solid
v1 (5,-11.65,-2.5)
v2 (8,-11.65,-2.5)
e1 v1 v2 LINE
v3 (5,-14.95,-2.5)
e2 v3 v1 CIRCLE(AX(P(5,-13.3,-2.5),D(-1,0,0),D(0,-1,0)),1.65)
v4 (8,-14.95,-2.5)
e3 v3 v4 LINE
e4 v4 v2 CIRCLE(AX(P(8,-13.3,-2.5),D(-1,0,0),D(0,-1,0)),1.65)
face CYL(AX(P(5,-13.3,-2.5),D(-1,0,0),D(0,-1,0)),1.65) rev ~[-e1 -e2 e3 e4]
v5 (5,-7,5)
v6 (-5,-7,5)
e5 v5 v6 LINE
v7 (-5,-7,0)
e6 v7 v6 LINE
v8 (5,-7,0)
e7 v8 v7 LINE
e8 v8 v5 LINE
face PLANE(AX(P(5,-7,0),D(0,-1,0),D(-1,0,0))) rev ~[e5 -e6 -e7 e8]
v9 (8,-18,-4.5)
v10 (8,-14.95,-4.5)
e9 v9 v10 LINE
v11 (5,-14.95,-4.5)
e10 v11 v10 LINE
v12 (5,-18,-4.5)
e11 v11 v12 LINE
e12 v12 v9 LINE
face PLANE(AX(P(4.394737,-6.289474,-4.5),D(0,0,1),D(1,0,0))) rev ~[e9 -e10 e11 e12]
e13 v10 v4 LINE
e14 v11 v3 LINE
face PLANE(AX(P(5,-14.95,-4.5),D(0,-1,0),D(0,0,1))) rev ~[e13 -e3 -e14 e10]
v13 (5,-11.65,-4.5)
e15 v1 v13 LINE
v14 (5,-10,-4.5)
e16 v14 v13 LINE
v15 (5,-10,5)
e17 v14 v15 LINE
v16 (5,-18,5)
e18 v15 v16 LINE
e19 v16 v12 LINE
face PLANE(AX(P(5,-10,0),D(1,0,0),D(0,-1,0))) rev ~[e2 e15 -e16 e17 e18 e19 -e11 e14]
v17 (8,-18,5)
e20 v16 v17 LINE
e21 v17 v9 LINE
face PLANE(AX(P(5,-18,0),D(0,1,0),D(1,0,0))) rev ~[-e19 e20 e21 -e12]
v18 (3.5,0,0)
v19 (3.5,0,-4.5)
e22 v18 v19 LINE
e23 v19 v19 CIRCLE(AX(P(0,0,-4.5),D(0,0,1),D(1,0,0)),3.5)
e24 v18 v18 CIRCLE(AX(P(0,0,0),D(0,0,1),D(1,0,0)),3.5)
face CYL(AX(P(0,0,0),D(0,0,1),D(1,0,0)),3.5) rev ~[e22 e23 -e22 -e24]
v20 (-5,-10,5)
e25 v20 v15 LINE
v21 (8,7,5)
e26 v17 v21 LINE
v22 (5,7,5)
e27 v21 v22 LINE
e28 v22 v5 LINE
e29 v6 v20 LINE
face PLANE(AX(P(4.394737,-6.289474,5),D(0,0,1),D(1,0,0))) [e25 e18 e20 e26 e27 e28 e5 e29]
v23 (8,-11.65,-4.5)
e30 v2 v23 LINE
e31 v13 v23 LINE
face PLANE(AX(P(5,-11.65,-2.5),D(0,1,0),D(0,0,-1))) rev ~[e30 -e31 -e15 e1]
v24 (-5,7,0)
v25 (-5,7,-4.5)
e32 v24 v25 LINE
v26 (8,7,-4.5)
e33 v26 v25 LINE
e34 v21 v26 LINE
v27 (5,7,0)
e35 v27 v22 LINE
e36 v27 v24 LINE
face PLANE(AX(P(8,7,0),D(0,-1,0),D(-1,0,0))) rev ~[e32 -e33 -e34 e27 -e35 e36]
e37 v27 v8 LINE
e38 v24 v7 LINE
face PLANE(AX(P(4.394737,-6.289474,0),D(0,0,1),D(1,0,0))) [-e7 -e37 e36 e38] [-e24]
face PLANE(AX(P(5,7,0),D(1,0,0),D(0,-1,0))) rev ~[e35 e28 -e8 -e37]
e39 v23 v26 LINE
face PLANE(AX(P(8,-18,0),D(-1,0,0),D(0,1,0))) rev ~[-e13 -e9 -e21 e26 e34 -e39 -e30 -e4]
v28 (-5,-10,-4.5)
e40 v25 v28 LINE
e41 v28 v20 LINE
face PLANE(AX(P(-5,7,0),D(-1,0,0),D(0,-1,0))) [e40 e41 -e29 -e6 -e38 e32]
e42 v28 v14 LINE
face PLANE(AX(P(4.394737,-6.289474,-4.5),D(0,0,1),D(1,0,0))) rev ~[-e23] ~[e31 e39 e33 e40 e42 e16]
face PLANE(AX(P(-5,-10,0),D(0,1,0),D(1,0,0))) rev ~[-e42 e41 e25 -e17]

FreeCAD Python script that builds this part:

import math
import FreeCAD as App
import Part
import Sketcher
Q = App.Units.Quantity


def add_polygon(sketch, points):
    """Adds a closed chain of lines whose ends are joined by coincident constraints."""
    first, n = sketch.GeometryCount, len(points)
    for a, b in zip(points, points[1:] + points[:1]):
        sketch.addGeometry(Part.LineSegment(App.Vector(*a, 0), App.Vector(*b, 0)), False)
    for i in range(n):
        sketch.addConstraint(Sketcher.Constraint("Coincident", first + i, 2, first + (i + 1) % n, 1))

doc = App.newDocument("Part")
body = doc.addObject("PartDesign::Body", "Body")

# Sketch on XY plane
sketch1 = body.newObject("Sketcher::SketchObject", "Sketch")
sketch1.AttachmentSupport = (doc.getObject("XY_Plane"), [""])
sketch1.MapMode = "FlatFace"
add_polygon(sketch1, [(8, 7), (-5, 7), (-5, -10), (5, -10), (5, -18), (8, -18)])  # lines 0-5
sketch1.addGeometry(Part.Circle(App.Vector(0, 0, 0), App.Vector(0, 0, 1), 3.5), False)  # 6
sketch1.addConstraint([
    Sketcher.Constraint("Horizontal", 0),
    Sketcher.Constraint("Vertical", 1),
    Sketcher.Constraint("Horizontal", 2),
    Sketcher.Constraint("Vertical", 3),
    Sketcher.Constraint("Horizontal", 4),
    Sketcher.Constraint("Vertical", 5),
    Sketcher.Constraint("Coincident", 6, 3, -1, 1),
    Sketcher.Constraint("Diameter", 6, Q("7 mm")),
    Sketcher.Constraint("DistanceX", 0, 2, 0, 1, Q("13 mm")),
    Sketcher.Constraint("DistanceX", 2, 1, 2, 2, Q("10 mm")),
    Sketcher.Constraint("DistanceY", 1, 2, 1, 1, Q("17 mm")),
    Sketcher.Constraint("DistanceY", 3, 2, 3, 1, Q("8 mm")),
    Sketcher.Constraint("DistanceX", 0, 2, -1, 1, Q("5 mm")),
    Sketcher.Constraint("DistanceY", -1, 1, 0, 2, Q("7 mm")),
])
pad1 = body.newObject("PartDesign::Pad", "Pad")
pad1.Profile = sketch1
pad1.Length = 4.5
pad1.Reversed = True

# Sketch on XY plane
sketch2 = body.newObject("Sketcher::SketchObject", "Sketch001")
sketch2.AttachmentSupport = (doc.getObject("XY_Plane"), [""])
sketch2.MapMode = "FlatFace"
add_polygon(sketch2, [(8, 7), (5, 7), (5, -7), (-5, -7), (-5, -10), (5, -10), (5, -18), (8, -18)])  # lines 0-7
sketch2.addConstraint([
    Sketcher.Constraint("Horizontal", 0),
    Sketcher.Constraint("Vertical", 1),
    Sketcher.Constraint("Horizontal", 2),
    Sketcher.Constraint("Vertical", 3),
    Sketcher.Constraint("Horizontal", 4),
    Sketcher.Constraint("Vertical", 5),
    Sketcher.Constraint("Horizontal", 6),
    Sketcher.Constraint("Vertical", 7),
    Sketcher.Constraint("Symmetric", 0, 2, 2, 2, -1, 1),
    Sketcher.Constraint("Vertical", 1, 2, 4, 2),
    Sketcher.Constraint("Equal", 6, 3),
    Sketcher.Constraint("DistanceX", 0, 2, 0, 1, Q("3 mm")),
    Sketcher.Constraint("DistanceX", 2, 2, 2, 1, Q("10 mm")),
    Sketcher.Constraint("DistanceY", 1, 2, 1, 1, Q("14 mm")),
    Sketcher.Constraint("DistanceY", 5, 2, 5, 1, Q("8 mm")),
])
pad2 = body.newObject("PartDesign::Pad", "Pad001")
pad2.Profile = sketch2
pad2.Length = 5

# Sketch on YZ plane
sketch3 = body.newObject("Sketcher::SketchObject", "Sketch002")
sketch3.AttachmentSupport = (doc.getObject("YZ_Plane"), [""])
sketch3.MapMode = "FlatFace"
sketch3.AttachmentOffset = App.Placement(App.Vector(0, 0, 5), App.Rotation())
sketch3.addGeometry([
    Part.LineSegment(App.Vector(-14.9, -4.5, 0), App.Vector(-14.9, -2.5, 0)),
    Part.ArcOfCircle(Part.Circle(App.Vector(-13.3, -2.5, 0), App.Vector(0, 0, 1), 1.6), math.radians(0), math.radians(180)),
    Part.LineSegment(App.Vector(-11.7, -2.5, 0), App.Vector(-11.7, -4.5, 0)),
    Part.LineSegment(App.Vector(-11.7, -4.5, 0), App.Vector(-14.9, -4.5, 0)),
], False)
sketch3.addConstraint([
    Sketcher.Constraint("Tangent", 0, 2, 1, 2),
    Sketcher.Constraint("Tangent", 1, 1, 2, 1),
    Sketcher.Constraint("Coincident", 2, 2, 3, 1),
    Sketcher.Constraint("Coincident", 3, 2, 0, 1),
    Sketcher.Constraint("Vertical", 0),
    Sketcher.Constraint("Vertical", 2),
    Sketcher.Constraint("Horizontal", 3),
    Sketcher.Constraint("DistanceY", 0, 1, 0, 2, Q("2 mm")),
    Sketcher.Constraint("Radius", 1, Q("1.65 mm")),
    Sketcher.Constraint("DistanceX", 1, 3, -1, 1, Q("13.3 mm")),
    Sketcher.Constraint("DistanceY", 1, 3, -1, 1, Q("2.5 mm")),
])
pocket1 = body.newObject("PartDesign::Pocket", "Pocket")
pocket1.Profile = sketch3
pocket1.Length = 25
pocket1.Reversed = True

doc.recompute()
